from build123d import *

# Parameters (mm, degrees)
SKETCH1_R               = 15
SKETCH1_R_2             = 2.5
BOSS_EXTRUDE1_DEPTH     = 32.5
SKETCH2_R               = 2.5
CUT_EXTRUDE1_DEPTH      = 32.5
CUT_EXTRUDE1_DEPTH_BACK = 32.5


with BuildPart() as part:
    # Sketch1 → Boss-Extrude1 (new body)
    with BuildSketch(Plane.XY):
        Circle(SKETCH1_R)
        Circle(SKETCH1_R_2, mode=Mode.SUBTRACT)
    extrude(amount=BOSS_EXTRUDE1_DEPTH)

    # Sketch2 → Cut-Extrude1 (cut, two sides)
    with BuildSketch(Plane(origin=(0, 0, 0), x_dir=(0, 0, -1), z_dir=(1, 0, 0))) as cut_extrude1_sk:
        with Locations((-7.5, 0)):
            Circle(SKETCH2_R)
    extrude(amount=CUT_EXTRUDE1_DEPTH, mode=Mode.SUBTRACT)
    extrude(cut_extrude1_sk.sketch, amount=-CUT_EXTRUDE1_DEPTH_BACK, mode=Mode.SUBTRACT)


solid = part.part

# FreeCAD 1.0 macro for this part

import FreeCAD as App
import Part
import Sketcher

doc = App.newDocument("Part")
body = doc.addObject("PartDesign::Body", "Body")

sketch1 = body.newObject("Sketcher::SketchObject", "Sketch")
sketch1.AttachmentSupport = (doc.getObject("XY_Plane"), [""])
sketch1.MapMode = "FlatFace"
sketch1.addGeometry([
    Part.Circle(App.Vector(0, 0, 0), App.Vector(0, 0, 1), 15),
    Part.Circle(App.Vector(0, 0, 0), App.Vector(0, 0, 1), 2.5),
], False)
sketch1.addConstraint([
    Sketcher.Constraint("Coincident", 0, 3, -1, 1),
    Sketcher.Constraint("Coincident", 1, 3, -1, 1),
    Sketcher.Constraint("Diameter", 0, 30.0),
    Sketcher.Constraint("Diameter", 1, 5.0),
])
pad1 = body.newObject("PartDesign::Pad", "Pad")
pad1.Profile = sketch1
pad1.Length = 32.5

sketch2 = body.newObject("Sketcher::SketchObject", "Sketch001")
sketch2.AttachmentSupport = (doc.getObject("YZ_Plane"), [""])
sketch2.MapMode = "FlatFace"
sketch2.addGeometry(Part.Circle(App.Vector(0, 7.5, 0), App.Vector(0, 0, 1), 2.5), False)
sketch2.addConstraint([
    Sketcher.Constraint("PointOnObject", 0, 3, -2),
    Sketcher.Constraint("Diameter", 0, 5.0),
    Sketcher.Constraint("DistanceY", -1, 1, 0, 3, 7.5),
])
pocket1 = body.newObject("PartDesign::Pocket", "Pocket")
pocket1.Profile = sketch2
pocket1.Type = "ThroughAll"
pocket1.Midplane = True

doc.recompute()
